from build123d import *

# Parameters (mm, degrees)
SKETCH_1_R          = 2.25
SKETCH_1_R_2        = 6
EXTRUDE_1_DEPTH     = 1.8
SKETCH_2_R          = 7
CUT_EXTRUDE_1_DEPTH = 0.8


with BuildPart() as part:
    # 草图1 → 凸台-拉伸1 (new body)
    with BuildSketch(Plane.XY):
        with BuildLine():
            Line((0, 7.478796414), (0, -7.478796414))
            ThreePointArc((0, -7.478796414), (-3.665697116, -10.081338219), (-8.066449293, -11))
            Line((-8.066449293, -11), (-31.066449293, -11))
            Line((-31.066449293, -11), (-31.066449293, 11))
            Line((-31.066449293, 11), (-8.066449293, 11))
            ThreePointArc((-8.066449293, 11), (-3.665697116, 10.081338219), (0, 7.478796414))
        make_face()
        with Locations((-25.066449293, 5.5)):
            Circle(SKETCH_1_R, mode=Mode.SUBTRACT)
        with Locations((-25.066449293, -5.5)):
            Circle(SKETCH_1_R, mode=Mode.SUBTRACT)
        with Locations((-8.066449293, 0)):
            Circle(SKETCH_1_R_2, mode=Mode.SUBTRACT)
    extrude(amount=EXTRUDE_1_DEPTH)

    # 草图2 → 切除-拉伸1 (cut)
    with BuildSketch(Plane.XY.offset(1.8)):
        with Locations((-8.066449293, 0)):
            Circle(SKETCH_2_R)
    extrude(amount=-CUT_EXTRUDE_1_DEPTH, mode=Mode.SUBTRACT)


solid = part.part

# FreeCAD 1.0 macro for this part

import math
import FreeCAD as App
import Part
import Sketcher
from FreeCAD import Vector
Q = App.Units.Quantity

doc = App.newDocument("Part")
body = doc.addObject("PartDesign::Body", "Body")

# Sketch on XY plane
sketch1 = doc.addObject("Sketcher::SketchObject", "Sketch")
body.addObject(sketch1)
sketch1.AttachmentSupport = (doc.XY_Plane, [""])
sketch1.MapMode = "FlatFace"
sketch1.addGeometry([
    Part.LineSegment(Vector(0, -7.5, 0), Vector(0, 7.5, 0)),  # 0
    Part.ArcOfCircle(Part.Circle(Vector(-8.1, 0, 0), Vector(0, 0, 1), 11), math.radians(43), math.radians(90)),  # 1
    Part.LineSegment(Vector(-8.1, 11, 0), Vector(-31.1, 11, 0)),  # 2
    Part.LineSegment(Vector(-31.1, 11, 0), Vector(-31.1, -11, 0)),  # 3
    Part.LineSegment(Vector(-31.1, -11, 0), Vector(-8.1, -11, 0)),  # 4
    Part.ArcOfCircle(Part.Circle(Vector(-8.1, 0, 0), Vector(0, 0, 1), 11), math.radians(-90), math.radians(-43)),  # 5
    Part.Circle(Vector(-25.1, -5.5, 0), Vector(0, 0, 1), 2.2),  # 6
    Part.Circle(Vector(-8.1, 0, 0), Vector(0, 0, 1), 6),  # 7
    Part.Circle(Vector(-25.1, 5.5, 0), Vector(0, 0, 1), 2.2),  # 8
], False)
sketch1.addConstraint([
    Sketcher.Constraint("Coincident", 0, 2, 1, 1),
    Sketcher.Constraint("Tangent", 1, 2, 2, 1),
    Sketcher.Constraint("Coincident", 2, 2, 3, 1),
    Sketcher.Constraint("Coincident", 3, 2, 4, 1),
    Sketcher.Constraint("Tangent", 4, 2, 5, 1),
    Sketcher.Constraint("Coincident", 5, 2, 0, 1),
    Sketcher.Constraint("Vertical", 0),
    Sketcher.Constraint("Horizontal", 2),
    Sketcher.Constraint("Vertical", 3),
    Sketcher.Constraint("Horizontal", 4),
    Sketcher.Constraint("Coincident", 5, 3, 1, 3),
    Sketcher.Constraint("Coincident", 7, 3, 1, 3),
    Sketcher.Constraint("Equal", 1, 5),
    Sketcher.Constraint("Equal", 6, 8),
    Sketcher.Constraint("Symmetric", 0, 2, 5, 2, -1, 1),
    Sketcher.Constraint("Symmetric", 6, 3, 8, 3, -1),
    Sketcher.Constraint("Diameter", 7, Q("12 mm")),
    Sketcher.Constraint("Radius", 1, Q("11 mm")),
    Sketcher.Constraint("Diameter", 6, Q("4.5 mm")),
    Sketcher.Constraint("DistanceX", 2, 2, 2, 1, Q("23 mm")),
    Sketcher.Constraint("DistanceX", 6, 3, 5, 3, Q("17 mm")),
    Sketcher.Constraint("DistanceY", 6, 3, 8, 3, Q("11 mm")),
    Sketcher.Constraint("DistanceY", 0, 1, 0, 2, Q("14.957593 mm")),
])
pad1 = doc.addObject("PartDesign::Pad", "Pad")
body.addObject(pad1)
pad1.Profile = sketch1
pad1.Length = 1.8

# Sketch on XY plane
sketch2 = doc.addObject("Sketcher::SketchObject", "Sketch001")
body.addObject(sketch2)
sketch2.AttachmentSupport = (doc.XY_Plane, [""])
sketch2.MapMode = "FlatFace"
sketch2.AttachmentOffset = App.Placement(Vector(0, 0, 1.8), App.Rotation())
sketch2.addGeometry(Part.Circle(Vector(-8, 0, 0), Vector(0, 0, 1), 7), False)
sketch2.addConstraint([
    Sketcher.Constraint("PointOnObject", 0, 3, -1),
    Sketcher.Constraint("Diameter", 0, Q("14 mm")),
    Sketcher.Constraint("DistanceX", 0, 3, -1, 1, Q("8.066449 mm")),
])
pocket1 = doc.addObject("PartDesign::Pocket", "Pocket")
body.addObject(pocket1)
pocket1.Profile = sketch2
pocket1.Length = 0.8

doc.recompute()
